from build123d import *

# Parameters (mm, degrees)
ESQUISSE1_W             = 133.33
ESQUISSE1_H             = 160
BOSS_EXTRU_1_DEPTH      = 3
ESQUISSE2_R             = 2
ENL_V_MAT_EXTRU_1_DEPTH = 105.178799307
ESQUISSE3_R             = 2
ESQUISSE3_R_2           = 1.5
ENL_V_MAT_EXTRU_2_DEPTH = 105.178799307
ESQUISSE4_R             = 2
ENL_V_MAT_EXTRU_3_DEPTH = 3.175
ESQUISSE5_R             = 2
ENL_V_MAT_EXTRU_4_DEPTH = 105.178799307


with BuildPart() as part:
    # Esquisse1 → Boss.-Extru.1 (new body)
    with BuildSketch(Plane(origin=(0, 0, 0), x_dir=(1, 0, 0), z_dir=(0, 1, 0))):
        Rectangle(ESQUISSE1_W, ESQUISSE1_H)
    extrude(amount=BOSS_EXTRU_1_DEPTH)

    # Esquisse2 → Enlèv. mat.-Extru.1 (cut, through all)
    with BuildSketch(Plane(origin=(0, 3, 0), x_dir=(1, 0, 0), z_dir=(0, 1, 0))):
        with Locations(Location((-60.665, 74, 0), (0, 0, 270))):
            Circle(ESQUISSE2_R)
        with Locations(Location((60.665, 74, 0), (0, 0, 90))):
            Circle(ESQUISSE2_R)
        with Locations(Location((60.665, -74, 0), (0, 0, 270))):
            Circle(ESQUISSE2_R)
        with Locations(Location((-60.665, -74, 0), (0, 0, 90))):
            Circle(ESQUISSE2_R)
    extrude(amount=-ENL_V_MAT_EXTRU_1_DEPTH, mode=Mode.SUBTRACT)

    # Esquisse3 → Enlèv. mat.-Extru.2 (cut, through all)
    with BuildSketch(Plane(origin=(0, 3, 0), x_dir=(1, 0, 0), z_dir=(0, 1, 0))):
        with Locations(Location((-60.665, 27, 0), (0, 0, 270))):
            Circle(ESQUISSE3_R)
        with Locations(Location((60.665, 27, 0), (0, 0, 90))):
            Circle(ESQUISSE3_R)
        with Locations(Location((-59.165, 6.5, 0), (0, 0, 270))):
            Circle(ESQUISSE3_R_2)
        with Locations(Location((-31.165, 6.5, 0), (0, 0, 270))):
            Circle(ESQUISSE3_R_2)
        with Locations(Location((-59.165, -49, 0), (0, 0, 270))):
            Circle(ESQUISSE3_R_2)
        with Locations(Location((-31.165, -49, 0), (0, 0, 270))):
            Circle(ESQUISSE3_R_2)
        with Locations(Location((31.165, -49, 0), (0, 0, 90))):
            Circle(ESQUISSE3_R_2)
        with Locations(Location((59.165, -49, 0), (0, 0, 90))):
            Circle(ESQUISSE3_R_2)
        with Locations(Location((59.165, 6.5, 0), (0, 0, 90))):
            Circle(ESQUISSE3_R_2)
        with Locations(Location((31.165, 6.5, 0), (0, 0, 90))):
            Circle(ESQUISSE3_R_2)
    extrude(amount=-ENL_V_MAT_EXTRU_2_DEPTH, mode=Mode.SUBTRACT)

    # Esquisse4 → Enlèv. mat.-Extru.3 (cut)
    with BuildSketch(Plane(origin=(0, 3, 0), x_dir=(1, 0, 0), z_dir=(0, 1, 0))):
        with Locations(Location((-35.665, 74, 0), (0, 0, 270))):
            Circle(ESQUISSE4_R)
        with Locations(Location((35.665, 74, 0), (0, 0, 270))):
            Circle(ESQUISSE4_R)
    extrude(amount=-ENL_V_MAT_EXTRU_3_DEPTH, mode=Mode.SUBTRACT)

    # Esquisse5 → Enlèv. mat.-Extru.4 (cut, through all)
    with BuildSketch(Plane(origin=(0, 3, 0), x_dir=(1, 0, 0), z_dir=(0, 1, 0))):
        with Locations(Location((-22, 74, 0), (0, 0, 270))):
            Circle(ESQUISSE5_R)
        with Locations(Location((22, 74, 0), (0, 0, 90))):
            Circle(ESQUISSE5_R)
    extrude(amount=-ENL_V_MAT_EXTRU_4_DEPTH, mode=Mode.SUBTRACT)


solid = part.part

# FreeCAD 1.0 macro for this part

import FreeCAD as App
import Part
import Sketcher
from FreeCAD import Vector

doc = App.newDocument("Part")
params = doc.addObject("Spreadsheet::Sheet", "Params")
for row, (alias, value) in enumerate([
    ("sketch1_height", "160 mm"),
    ("sketch1_width", "133.33 mm"),
    ("pad1_length", "3 mm"),
    ("sketch2_diameter", "4 mm"),
    ("sketch3_diameter", "4 mm"),
    ("sketch3_diameter2", "3 mm"),
    ("sketch4_diameter", "4 mm"),
    ("pocket3_length", "3.175 mm"),
    ("sketch5_diameter", "4 mm"),
], start=1):
    params.set(f"A{row}", alias)
    params.set(f"B{row}", "=" + value)
    params.setAlias(f"B{row}", alias)

body = doc.addObject("PartDesign::Body", "Body")

sketch1 = body.newObject("Sketcher::SketchObject", "Sketch")
sketch1.AttachmentSupport = (doc.getObject("XZ_Plane"), [""])
sketch1.MapMode = "FlatFace"
sketch1.addGeometry([
    Part.LineSegment(Vector(-66.665, -80, 0), Vector(-66.665, 80, 0)),
    Part.LineSegment(Vector(-66.665, 80, 0), Vector(66.665, 80, 0)),
    Part.LineSegment(Vector(66.665, 80, 0), Vector(66.665, -80, 0)),
    Part.LineSegment(Vector(66.665, -80, 0), Vector(-66.665, -80, 0)),
], False)
sketch1.addConstraint([
    Sketcher.Constraint("Coincident", 0, 2, 1, 1),
    Sketcher.Constraint("Coincident", 1, 2, 2, 1),
    Sketcher.Constraint("Coincident", 2, 2, 3, 1),
    Sketcher.Constraint("Coincident", 3, 2, 0, 1),
    Sketcher.Constraint("Vertical", 0),
    Sketcher.Constraint("Horizontal", 1),
    Sketcher.Constraint("Vertical", 2),
    Sketcher.Constraint("Horizontal", 3),
    Sketcher.Constraint("Symmetric", 0, 2, 2, 2, -1, 1),
    Sketcher.Constraint("DistanceY", 0, 1, 0, 2, 160.0),
    Sketcher.Constraint("DistanceX", 1, 1, 1, 2, 133.33),
])
sketch1.setExpression("Constraints[9]", "Params.sketch1_height")
sketch1.setExpression("Constraints[10]", "Params.sketch1_width")
pad1 = body.newObject("PartDesign::Pad", "Pad")
pad1.Profile = sketch1
pad1.setExpression("Length", "Params.pad1_length")
pad1.Reversed = True

sketch2 = body.newObject("Sketcher::SketchObject", "Sketch001")
sketch2.AttachmentSupport = (doc.getObject("XZ_Plane"), [""])
sketch2.MapMode = "FlatFace"
sketch2.AttachmentOffset = App.Placement(Vector(0, 0, -3), App.Rotation())
sketch2.addGeometry([
    Part.Circle(Vector(-60.665, -74, 0), Vector(0, 0, 1), 2),
    Part.Circle(Vector(60.665, -74, 0), Vector(0, 0, 1), 2),
    Part.Circle(Vector(60.665, 74, 0), Vector(0, 0, 1), 2),
    Part.Circle(Vector(-60.665, 74, 0), Vector(0, 0, 1), 2),
], False)
sketch2.addConstraint([
    Sketcher.Constraint("Equal", 0, 1),
    Sketcher.Constraint("Equal", 1, 2),
    Sketcher.Constraint("Equal", 2, 3),
    Sketcher.Constraint("Symmetric", 0, 3, 2, 3, -1, 1),
    Sketcher.Constraint("Symmetric", 1, 3, 3, 3, -1, 1),
    Sketcher.Constraint("Symmetric", 0, 3, 1, 3, -2),
    Sketcher.Constraint("Diameter", 0, 4.0),
    Sketcher.Constraint("DistanceY", 0, 3, -1, 1, 74.0),
    Sketcher.Constraint("DistanceX", 0, 3, 1, 3, 121.33),
])
sketch2.setExpression("Constraints[6]", "Params.sketch2_diameter")
pocket1 = body.newObject("PartDesign::Pocket", "Pocket")
pocket1.Profile = sketch2
pocket1.Type = "ThroughAll"
pocket1.Reversed = True

sketch3 = body.newObject("Sketcher::SketchObject", "Sketch002")
sketch3.AttachmentSupport = (doc.getObject("XZ_Plane"), [""])
sketch3.MapMode = "FlatFace"
sketch3.AttachmentOffset = App.Placement(Vector(0, 0, -3), App.Rotation())
sketch3.addGeometry([
    Part.Circle(Vector(-60.665, -27, 0), Vector(0, 0, 1), 2),
    Part.Circle(Vector(60.665, -27, 0), Vector(0, 0, 1), 2),
    Part.Circle(Vector(-59.165, -6.5, 0), Vector(0, 0, 1), 1.5),
    Part.Circle(Vector(-31.165, -6.5, 0), Vector(0, 0, 1), 1.5),
    Part.Circle(Vector(-59.165, 49, 0), Vector(0, 0, 1), 1.5),
    Part.Circle(Vector(-31.165, 49, 0), Vector(0, 0, 1), 1.5),
    Part.Circle(Vector(31.165, 49, 0), Vector(0, 0, 1), 1.5),
    Part.Circle(Vector(59.165, 49, 0), Vector(0, 0, 1), 1.5),
    Part.Circle(Vector(59.165, -6.5, 0), Vector(0, 0, 1), 1.5),
    Part.Circle(Vector(31.165, -6.5, 0), Vector(0, 0, 1), 1.5),
], False)
sketch3.addConstraint([
    Sketcher.Constraint("Equal", 0, 1),
    Sketcher.Constraint("Equal", 2, 3),
    Sketcher.Constraint("Equal", 3, 4),
    Sketcher.Constraint("Equal", 4, 5),
    Sketcher.Constraint("Equal", 5, 6),
    Sketcher.Constraint("Equal", 6, 7),
    Sketcher.Constraint("Equal", 7, 8),
    Sketcher.Constraint("Equal", 8, 9),
    Sketcher.Constraint("Symmetric", 0, 3, 1, 3, -2),
    Sketcher.Constraint("Symmetric", 5, 3, 6, 3, -2),
    Sketcher.Constraint("Symmetric", 4, 3, 7, 3, -2),
    Sketcher.Constraint("Symmetric", 2, 3, 8, 3, -2),
    Sketcher.Constraint("Symmetric", 3, 3, 9, 3, -2),
    Sketcher.Constraint("Horizontal", 2, 3, 3, 3),
    Sketcher.Constraint("Horizontal", 4, 3, 5, 3),
    Sketcher.Constraint("Vertical", 2, 3, 4, 3),
    Sketcher.Constraint("Vertical", 3, 3, 5, 3),
    Sketcher.Constraint("Diameter", 0, 4.0),
    Sketcher.Constraint("Diameter", 2, 3.0),
    Sketcher.Constraint("DistanceY", 0, 3, -1, 1, 27.0),
    Sketcher.Constraint("DistanceY", -1, 1, 4, 3, 49.0),
    Sketcher.Constraint("DistanceX", 2, 3, 3, 3, 28.0),
    Sketcher.Constraint("DistanceY", 2, 3, -1, 1, 6.5),
    Sketcher.Constraint("DistanceX", 0, 3, 2, 3, 1.5),
    Sketcher.Constraint("DistanceX", 0, 3, 1, 3, 121.33),
])
sketch3.setExpression("Constraints[17]", "Params.sketch3_diameter")
sketch3.setExpression("Constraints[18]", "Params.sketch3_diameter2")
pocket2 = body.newObject("PartDesign::Pocket", "Pocket001")
pocket2.Profile = sketch3
pocket2.Type = "ThroughAll"
pocket2.Reversed = True

sketch4 = body.newObject("Sketcher::SketchObject", "Sketch003")
sketch4.AttachmentSupport = (doc.getObject("XZ_Plane"), [""])
sketch4.MapMode = "FlatFace"
sketch4.AttachmentOffset = App.Placement(Vector(0, 0, -3), App.Rotation())
sketch4.addGeometry([
    Part.Circle(Vector(-35.665, -74, 0), Vector(0, 0, 1), 2),
    Part.Circle(Vector(35.665, -74, 0), Vector(0, 0, 1), 2),
], False)
sketch4.addConstraint([
    Sketcher.Constraint("Equal", 0, 1),
    Sketcher.Constraint("Symmetric", 0, 3, 1, 3, -2),
    Sketcher.Constraint("Diameter", 0, 4.0),
    Sketcher.Constraint("DistanceY", 0, 3, -1, 1, 74.0),
    Sketcher.Constraint("DistanceX", 0, 3, 1, 3, 71.33),
])
sketch4.setExpression("Constraints[2]", "Params.sketch4_diameter")
pocket3 = body.newObject("PartDesign::Pocket", "Pocket002")
pocket3.Profile = sketch4
pocket3.setExpression("Length", "Params.pocket3_length")
pocket3.Reversed = True

sketch5 = body.newObject("Sketcher::SketchObject", "Sketch004")
sketch5.AttachmentSupport = (doc.getObject("XZ_Plane"), [""])
sketch5.MapMode = "FlatFace"
sketch5.AttachmentOffset = App.Placement(Vector(0, 0, -3), App.Rotation())
sketch5.addGeometry([
    Part.Circle(Vector(-22, -74, 0), Vector(0, 0, 1), 2),
    Part.Circle(Vector(22, -74, 0), Vector(0, 0, 1), 2),
], False)
sketch5.addConstraint([
    Sketcher.Constraint("Equal", 0, 1),
    Sketcher.Constraint("Symmetric", 0, 3, 1, 3, -2),
    Sketcher.Constraint("Diameter", 0, 4.0),
    Sketcher.Constraint("DistanceX", 0, 3, -1, 1, 22.0),
    Sketcher.Constraint("DistanceY", 0, 3, -1, 1, 74.0),
])
sketch5.setExpression("Constraints[2]", "Params.sketch5_diameter")
pocket4 = body.newObject("PartDesign::Pocket", "Pocket003")
pocket4.Profile = sketch5
pocket4.Type = "ThroughAll"
pocket4.Reversed = True

doc.recompute()
